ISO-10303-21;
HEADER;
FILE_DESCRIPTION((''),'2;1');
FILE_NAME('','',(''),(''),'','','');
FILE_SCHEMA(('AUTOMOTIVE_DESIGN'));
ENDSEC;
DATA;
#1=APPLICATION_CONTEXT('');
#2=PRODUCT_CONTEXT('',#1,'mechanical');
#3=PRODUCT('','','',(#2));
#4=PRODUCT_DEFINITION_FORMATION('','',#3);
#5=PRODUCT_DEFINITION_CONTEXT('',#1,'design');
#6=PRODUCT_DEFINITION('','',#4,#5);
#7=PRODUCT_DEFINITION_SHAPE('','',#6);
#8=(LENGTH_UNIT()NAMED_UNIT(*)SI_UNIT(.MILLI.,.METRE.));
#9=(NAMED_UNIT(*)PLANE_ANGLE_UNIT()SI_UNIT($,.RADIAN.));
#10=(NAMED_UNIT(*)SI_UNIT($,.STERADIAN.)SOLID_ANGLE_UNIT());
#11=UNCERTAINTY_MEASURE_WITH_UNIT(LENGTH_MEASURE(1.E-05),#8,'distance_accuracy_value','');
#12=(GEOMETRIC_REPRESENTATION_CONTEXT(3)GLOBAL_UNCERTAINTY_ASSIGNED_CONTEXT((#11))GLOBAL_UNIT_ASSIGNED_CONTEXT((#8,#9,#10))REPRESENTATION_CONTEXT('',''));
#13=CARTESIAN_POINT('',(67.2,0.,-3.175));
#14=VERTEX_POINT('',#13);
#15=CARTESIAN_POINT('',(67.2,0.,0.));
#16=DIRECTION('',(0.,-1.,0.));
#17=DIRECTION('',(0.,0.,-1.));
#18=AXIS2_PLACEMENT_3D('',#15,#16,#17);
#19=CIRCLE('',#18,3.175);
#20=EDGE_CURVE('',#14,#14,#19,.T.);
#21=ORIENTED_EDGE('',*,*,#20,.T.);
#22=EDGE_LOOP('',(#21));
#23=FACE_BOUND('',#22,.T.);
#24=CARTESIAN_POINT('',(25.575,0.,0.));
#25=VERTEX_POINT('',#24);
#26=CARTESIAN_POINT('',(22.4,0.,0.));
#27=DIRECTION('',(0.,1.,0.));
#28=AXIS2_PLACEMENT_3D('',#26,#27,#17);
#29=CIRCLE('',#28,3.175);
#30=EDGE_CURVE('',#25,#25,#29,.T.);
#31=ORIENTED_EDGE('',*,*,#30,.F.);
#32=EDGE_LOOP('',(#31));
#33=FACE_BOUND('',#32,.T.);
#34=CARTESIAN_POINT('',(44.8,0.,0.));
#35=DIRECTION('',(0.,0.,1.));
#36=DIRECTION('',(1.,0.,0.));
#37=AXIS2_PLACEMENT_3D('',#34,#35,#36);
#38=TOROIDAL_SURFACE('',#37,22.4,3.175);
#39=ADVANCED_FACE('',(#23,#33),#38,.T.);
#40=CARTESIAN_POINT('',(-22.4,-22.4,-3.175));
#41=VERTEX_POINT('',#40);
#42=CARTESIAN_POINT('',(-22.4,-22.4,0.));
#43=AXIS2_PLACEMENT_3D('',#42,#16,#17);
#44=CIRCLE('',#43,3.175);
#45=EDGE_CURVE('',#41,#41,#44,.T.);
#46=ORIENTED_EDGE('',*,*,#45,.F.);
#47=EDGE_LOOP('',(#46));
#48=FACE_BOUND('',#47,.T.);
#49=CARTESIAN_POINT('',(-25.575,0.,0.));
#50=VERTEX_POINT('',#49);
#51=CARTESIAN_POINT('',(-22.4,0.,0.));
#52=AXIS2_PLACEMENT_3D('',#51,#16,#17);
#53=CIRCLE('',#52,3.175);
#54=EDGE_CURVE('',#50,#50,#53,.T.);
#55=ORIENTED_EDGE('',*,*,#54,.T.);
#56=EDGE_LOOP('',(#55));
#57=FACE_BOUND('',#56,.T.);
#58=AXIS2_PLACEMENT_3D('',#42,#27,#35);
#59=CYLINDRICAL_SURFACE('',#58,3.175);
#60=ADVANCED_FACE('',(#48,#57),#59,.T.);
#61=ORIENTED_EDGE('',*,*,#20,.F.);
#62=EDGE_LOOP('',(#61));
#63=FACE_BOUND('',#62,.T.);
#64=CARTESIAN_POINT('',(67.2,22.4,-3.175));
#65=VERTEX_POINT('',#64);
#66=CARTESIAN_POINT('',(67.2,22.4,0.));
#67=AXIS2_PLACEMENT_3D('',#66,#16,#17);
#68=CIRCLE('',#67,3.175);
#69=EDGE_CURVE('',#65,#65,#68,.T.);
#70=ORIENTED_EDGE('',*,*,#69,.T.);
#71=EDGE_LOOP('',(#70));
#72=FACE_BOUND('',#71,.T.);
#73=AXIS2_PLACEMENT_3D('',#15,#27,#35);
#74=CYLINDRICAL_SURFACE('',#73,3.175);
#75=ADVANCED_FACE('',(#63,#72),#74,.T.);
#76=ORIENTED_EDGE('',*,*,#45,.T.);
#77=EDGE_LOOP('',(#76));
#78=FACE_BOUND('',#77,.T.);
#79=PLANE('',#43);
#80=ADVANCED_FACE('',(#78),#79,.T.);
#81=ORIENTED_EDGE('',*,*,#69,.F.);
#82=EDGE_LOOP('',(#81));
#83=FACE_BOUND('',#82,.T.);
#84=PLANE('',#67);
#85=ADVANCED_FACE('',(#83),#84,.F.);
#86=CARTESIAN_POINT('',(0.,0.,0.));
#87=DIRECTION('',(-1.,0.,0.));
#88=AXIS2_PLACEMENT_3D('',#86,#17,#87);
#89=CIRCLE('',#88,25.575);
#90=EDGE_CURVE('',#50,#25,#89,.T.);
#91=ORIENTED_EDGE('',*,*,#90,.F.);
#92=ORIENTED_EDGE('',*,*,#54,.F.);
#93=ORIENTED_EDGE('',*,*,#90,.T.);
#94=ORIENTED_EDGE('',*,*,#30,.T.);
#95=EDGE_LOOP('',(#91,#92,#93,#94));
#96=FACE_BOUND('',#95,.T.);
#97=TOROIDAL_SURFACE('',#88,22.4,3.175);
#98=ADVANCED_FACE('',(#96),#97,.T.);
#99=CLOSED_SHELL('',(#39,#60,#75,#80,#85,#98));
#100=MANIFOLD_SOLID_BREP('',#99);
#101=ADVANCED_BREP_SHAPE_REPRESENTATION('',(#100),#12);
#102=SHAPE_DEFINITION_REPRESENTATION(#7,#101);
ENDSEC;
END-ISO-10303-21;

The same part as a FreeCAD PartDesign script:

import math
import FreeCAD as App
import Part
import Sketcher

V = App.Vector

doc = App.newDocument("Part")
body = doc.addObject("PartDesign::Body", "Body")

sketch1 = doc.addObject("Sketcher::SketchObject", "Sketch")
body.addObject(sketch1)
sketch1.AttachmentSupport = (doc.XZ_Plane, [""])
sketch1.MapMode = "FlatFace"
sketch1.AttachmentOffset = App.Placement(V(0, 0, 22.4), App.Rotation())
sketch1.addGeometry(Part.Circle(V(-22.4, 0, 0), V(0, 0, 1), 3.2), False)
sketch1.addConstraint(Sketcher.Constraint("PointOnObject", 0, 3, -1))
sketch1.addConstraint(Sketcher.Constraint("Diameter", 0, 6.35))
sketch1.addConstraint(Sketcher.Constraint("DistanceX", 0, 3, -1, 1, 22.4))

sketch2 = doc.addObject("Sketcher::SketchObject", "Sketch001")
body.addObject(sketch2)
sketch2.AttachmentSupport = (doc.XY_Plane, [""])
sketch2.MapMode = "FlatFace"
sketch2.addGeometry(Part.LineSegment(V(-22, -22, 0), V(-22, 0, 0)), False)
sketch2.addGeometry(Part.ArcOfCircle(Part.Circle(V(0, 0, 0), V(0, 0, 1), 22), math.radians(0), math.radians(180)), False)
sketch2.addGeometry(Part.ArcOfCircle(Part.Circle(V(45, 0, 0), V(0, 0, 1), 22), math.radians(180), math.radians(360)), False)
sketch2.addGeometry(Part.LineSegment(V(67, 0, 0), V(67, 22, 0)), False)
sketch2.addConstraint(Sketcher.Constraint("Tangent", 0, 2, 1, 2))
sketch2.addConstraint(Sketcher.Constraint("Tangent", 1, 1, 2, 1))
sketch2.addConstraint(Sketcher.Constraint("Tangent", 2, 2, 3, 1))
sketch2.addConstraint(Sketcher.Constraint("Vertical", 0))
sketch2.addConstraint(Sketcher.Constraint("Vertical", 3))
sketch2.addConstraint(Sketcher.Constraint("Coincident", 1, 3, -1, 1))
sketch2.addConstraint(Sketcher.Constraint("Equal", 1, 2))
sketch2.addConstraint(Sketcher.Constraint("PointOnObject", 2, 3, -1))
sketch2.addConstraint(Sketcher.Constraint("Equal", 0, 3))
sketch2.addConstraint(Sketcher.Constraint("Radius", 1, 22.4))
sketch2.addConstraint(Sketcher.Constraint("DistanceY", 0, 1, 0, 2, 22.4))
doc.recompute()

additivepipe = doc.addObject("PartDesign::AdditivePipe", "AdditivePipe")
body.addObject(additivepipe)
additivepipe.Profile = sketch1
additivepipe.Spine = (sketch2, ["Edge1", "Edge2", "Edge3", "Edge4"])

doc.recompute()
